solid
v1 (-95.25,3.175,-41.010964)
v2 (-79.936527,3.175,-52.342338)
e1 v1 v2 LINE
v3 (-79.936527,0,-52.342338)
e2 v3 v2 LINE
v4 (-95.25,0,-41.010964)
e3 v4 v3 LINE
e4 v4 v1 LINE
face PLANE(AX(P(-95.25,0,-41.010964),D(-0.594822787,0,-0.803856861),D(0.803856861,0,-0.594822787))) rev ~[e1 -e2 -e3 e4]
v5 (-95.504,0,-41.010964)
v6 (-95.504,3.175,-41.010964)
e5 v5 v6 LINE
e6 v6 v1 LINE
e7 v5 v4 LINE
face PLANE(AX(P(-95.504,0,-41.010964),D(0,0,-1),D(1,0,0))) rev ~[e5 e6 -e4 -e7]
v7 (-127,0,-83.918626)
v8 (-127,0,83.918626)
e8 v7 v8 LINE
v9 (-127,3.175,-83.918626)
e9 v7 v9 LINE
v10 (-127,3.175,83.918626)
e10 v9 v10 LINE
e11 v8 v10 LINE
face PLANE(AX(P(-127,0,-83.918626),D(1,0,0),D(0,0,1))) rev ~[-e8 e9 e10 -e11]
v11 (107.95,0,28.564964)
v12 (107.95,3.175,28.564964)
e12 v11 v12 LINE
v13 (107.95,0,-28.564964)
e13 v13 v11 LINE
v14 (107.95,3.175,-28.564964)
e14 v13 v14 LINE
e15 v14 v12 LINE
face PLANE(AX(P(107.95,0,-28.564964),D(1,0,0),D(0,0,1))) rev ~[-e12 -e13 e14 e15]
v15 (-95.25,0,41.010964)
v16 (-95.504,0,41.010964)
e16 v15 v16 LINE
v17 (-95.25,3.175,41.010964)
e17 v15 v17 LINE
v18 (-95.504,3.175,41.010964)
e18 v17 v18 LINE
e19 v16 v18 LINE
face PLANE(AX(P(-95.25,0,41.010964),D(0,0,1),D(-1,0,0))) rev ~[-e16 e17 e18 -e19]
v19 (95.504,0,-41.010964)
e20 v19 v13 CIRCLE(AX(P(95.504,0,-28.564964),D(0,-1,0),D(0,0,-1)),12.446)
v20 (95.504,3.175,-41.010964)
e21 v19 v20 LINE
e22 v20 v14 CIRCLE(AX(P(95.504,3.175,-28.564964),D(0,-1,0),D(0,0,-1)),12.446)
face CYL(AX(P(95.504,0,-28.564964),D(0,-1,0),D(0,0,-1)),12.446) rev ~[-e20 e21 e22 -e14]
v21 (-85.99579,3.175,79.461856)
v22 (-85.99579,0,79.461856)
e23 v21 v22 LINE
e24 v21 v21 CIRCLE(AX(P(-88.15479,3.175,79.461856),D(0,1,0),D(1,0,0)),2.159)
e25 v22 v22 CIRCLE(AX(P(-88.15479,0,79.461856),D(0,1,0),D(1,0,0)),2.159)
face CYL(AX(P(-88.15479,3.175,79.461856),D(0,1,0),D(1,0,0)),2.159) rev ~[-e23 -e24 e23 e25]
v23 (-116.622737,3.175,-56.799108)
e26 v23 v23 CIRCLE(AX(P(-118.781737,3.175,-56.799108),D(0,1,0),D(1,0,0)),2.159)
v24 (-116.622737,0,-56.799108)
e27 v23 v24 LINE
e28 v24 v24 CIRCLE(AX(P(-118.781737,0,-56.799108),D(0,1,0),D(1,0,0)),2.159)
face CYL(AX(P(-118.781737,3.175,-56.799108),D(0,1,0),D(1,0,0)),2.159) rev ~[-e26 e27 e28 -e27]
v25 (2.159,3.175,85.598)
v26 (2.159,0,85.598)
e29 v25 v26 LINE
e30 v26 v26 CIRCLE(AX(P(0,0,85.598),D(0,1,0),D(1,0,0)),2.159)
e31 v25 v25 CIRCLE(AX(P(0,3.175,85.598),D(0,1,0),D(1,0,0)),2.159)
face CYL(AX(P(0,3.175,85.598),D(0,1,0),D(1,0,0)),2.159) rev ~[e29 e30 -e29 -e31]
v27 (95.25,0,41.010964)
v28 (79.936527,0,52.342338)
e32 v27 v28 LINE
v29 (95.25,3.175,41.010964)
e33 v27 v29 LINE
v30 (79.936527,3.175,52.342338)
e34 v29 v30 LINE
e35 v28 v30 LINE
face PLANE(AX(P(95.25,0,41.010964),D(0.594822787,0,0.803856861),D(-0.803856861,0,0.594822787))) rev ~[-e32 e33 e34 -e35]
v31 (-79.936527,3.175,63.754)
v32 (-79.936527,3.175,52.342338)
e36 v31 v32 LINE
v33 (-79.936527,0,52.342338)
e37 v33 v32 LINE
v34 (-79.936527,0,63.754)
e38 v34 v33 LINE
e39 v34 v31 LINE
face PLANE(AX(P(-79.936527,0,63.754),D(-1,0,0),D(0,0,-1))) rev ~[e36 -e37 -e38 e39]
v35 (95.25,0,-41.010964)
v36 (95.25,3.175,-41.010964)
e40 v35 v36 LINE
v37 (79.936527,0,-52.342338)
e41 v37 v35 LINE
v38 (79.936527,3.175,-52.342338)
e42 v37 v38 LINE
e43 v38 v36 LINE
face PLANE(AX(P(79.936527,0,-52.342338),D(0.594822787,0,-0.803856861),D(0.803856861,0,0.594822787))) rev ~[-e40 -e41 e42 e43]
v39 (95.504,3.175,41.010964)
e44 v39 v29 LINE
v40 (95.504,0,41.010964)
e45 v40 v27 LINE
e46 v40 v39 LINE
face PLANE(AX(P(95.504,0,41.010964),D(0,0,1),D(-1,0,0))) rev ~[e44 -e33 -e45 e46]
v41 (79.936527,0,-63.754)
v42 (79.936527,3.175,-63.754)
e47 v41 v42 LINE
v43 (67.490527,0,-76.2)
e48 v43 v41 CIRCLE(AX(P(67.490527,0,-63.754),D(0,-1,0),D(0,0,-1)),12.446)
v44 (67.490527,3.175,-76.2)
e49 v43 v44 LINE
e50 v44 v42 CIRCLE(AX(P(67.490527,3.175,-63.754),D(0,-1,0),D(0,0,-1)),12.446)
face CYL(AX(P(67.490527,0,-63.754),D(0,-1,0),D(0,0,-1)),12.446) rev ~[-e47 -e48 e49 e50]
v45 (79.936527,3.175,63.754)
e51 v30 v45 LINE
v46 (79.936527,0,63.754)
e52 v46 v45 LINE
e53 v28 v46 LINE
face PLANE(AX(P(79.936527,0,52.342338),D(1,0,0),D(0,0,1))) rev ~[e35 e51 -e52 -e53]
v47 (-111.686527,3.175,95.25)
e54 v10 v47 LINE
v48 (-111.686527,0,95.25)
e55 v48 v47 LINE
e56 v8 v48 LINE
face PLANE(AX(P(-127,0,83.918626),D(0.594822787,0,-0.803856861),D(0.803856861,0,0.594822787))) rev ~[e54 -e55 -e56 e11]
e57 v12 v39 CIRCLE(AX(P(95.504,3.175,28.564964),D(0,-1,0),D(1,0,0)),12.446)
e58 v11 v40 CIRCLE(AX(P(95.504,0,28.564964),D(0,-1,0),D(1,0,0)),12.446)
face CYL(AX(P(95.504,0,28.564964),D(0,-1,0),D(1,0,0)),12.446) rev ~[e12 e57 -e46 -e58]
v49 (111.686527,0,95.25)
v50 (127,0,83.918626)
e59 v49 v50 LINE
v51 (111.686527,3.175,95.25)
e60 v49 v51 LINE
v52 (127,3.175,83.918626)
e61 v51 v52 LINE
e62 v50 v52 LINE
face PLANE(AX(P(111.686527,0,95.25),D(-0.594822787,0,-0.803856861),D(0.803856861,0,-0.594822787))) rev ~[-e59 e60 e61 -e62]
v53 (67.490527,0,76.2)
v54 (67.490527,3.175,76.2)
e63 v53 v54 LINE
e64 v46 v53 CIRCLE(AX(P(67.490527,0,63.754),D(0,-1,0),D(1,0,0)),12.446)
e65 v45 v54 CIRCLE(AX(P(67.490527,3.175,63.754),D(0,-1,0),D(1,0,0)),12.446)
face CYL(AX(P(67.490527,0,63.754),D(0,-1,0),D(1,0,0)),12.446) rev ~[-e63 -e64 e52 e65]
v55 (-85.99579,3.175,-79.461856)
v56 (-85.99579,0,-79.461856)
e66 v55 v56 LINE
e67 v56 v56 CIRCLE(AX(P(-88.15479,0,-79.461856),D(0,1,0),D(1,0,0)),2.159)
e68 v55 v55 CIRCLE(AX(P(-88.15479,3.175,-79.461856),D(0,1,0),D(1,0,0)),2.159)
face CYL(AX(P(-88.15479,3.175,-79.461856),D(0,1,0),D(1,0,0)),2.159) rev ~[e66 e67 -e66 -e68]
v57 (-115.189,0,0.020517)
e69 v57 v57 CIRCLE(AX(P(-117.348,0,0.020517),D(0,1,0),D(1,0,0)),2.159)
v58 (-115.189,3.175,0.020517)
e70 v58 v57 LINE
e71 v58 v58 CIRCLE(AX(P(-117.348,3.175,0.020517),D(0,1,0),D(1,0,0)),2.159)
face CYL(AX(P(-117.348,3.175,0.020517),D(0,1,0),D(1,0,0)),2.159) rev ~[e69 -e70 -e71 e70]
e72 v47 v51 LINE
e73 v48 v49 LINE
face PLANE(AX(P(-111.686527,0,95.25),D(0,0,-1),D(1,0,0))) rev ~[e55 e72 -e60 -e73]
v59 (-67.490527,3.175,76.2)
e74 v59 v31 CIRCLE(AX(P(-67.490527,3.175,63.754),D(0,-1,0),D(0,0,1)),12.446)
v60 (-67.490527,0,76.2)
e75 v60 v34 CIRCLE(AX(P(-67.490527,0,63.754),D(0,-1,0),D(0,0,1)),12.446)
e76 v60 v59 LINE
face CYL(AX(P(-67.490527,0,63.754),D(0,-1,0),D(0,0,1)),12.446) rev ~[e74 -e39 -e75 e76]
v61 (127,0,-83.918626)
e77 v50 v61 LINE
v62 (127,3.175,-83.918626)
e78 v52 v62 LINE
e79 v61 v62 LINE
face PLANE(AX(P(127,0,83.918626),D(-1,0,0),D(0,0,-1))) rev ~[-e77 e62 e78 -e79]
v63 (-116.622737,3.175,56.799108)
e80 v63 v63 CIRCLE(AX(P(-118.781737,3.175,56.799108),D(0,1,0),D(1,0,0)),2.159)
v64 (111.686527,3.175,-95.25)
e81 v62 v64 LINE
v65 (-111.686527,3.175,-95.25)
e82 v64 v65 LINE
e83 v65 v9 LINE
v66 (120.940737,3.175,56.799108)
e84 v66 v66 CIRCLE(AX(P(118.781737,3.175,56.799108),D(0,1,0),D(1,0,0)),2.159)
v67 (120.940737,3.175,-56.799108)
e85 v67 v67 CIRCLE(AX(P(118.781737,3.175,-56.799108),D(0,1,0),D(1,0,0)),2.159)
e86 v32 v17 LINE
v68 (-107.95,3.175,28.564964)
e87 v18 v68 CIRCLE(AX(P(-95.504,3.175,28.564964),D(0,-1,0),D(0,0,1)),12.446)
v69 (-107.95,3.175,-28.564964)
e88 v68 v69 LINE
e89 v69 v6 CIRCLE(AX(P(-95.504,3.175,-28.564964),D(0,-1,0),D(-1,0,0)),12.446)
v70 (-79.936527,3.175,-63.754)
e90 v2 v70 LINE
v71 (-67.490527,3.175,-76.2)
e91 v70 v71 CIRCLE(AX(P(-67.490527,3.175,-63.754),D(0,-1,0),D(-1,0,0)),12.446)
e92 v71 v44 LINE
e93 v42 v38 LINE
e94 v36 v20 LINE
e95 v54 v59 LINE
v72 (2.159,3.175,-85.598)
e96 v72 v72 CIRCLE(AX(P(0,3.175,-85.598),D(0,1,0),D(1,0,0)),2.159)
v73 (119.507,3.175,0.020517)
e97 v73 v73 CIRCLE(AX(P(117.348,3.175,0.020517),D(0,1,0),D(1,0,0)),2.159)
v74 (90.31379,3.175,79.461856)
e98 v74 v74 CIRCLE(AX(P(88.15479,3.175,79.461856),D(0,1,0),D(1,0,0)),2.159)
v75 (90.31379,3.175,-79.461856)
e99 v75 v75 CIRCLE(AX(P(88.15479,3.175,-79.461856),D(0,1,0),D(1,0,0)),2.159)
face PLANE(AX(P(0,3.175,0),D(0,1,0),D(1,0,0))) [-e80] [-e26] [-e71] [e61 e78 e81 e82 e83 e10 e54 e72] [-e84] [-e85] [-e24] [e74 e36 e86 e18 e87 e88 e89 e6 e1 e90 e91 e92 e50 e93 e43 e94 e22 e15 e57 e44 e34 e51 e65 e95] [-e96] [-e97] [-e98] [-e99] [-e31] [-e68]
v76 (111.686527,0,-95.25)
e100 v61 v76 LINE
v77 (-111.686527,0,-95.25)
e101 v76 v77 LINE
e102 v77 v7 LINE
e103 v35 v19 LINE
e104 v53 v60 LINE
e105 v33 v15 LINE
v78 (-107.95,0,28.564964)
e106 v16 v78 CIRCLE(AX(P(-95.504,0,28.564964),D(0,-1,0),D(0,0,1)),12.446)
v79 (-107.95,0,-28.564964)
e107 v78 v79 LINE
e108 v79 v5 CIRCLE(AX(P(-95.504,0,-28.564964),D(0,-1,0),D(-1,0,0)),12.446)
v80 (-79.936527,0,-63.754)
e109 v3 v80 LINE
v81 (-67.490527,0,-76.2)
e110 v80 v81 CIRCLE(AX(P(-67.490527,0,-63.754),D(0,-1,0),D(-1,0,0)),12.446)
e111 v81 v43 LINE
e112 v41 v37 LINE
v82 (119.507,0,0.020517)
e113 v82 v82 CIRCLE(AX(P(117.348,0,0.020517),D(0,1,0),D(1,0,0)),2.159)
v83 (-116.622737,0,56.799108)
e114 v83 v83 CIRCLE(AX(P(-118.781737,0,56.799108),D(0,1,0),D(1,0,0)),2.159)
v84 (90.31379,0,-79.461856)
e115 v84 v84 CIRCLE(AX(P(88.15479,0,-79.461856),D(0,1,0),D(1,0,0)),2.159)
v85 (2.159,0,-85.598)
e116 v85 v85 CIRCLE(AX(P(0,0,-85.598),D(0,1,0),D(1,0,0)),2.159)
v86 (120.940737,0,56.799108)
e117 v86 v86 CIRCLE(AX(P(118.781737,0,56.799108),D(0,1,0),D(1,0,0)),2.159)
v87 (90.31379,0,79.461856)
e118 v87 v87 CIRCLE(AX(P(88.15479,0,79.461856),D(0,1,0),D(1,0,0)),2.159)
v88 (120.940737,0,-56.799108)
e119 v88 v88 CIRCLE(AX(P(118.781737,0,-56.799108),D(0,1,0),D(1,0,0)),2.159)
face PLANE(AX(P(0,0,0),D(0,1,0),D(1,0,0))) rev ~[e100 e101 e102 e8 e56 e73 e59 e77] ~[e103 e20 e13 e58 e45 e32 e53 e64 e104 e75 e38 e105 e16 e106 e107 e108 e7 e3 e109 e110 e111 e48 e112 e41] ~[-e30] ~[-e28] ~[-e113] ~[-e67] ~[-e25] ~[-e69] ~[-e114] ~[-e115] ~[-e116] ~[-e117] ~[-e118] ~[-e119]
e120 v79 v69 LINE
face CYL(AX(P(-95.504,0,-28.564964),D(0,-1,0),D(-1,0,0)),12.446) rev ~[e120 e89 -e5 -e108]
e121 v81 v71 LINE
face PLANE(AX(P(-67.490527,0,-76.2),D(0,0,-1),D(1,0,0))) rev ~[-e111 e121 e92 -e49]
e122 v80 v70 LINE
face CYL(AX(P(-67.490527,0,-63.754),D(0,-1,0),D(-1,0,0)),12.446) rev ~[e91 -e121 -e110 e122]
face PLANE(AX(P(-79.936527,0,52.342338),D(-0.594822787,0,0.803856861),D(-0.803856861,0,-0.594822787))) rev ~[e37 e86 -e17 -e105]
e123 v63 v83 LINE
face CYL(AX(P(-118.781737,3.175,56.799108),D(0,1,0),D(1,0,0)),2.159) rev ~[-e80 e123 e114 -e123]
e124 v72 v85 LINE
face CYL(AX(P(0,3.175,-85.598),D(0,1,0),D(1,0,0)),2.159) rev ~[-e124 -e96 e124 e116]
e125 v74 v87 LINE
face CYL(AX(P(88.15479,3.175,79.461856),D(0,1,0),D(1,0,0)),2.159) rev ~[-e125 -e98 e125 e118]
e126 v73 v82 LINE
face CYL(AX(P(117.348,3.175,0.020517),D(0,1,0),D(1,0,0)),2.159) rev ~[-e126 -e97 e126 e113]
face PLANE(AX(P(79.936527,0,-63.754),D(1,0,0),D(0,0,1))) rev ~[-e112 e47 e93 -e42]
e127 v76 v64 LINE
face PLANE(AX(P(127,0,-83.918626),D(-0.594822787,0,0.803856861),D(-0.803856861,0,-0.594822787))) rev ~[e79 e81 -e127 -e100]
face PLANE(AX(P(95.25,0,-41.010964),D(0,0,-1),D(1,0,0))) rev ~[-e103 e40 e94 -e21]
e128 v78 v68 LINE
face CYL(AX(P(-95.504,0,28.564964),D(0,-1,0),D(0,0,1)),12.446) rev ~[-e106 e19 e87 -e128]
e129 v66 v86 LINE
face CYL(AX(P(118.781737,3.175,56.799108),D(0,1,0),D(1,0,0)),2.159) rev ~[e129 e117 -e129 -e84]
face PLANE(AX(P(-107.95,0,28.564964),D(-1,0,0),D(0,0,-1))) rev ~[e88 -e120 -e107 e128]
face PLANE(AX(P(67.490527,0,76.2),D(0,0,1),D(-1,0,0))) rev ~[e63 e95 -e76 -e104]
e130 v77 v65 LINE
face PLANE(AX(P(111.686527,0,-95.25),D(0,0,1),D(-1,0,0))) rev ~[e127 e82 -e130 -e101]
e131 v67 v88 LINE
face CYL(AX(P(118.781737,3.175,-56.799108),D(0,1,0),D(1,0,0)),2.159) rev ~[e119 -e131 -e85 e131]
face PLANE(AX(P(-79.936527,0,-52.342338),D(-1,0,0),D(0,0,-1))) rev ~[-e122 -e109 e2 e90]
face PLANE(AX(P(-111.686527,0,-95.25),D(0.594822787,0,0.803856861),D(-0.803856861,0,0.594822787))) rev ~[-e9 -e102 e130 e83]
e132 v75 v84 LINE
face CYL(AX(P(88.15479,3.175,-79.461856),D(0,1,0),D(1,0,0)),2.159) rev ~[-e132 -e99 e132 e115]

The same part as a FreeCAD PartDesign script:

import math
import FreeCAD as App
import Part
import Sketcher
Q = App.Units.Quantity

doc = App.newDocument("Part")
params = doc.addObject("Spreadsheet::Sheet", "Params")
for row, (alias, value) in enumerate([
    ("sketch1_radius", "0.49 in"),
    ("sketch1_width", "0.01 in"),
    ("sketch1_length", "0.75 in"),
    ("pad1_length", "0.125 in"),
    ("sketch2_diameter", "0.17 in"),
], start=1):
    params.set(f"A{row}", alias)
    params.set(f"B{row}", "=" + value)
    params.setAlias(f"B{row}", alias)

body = doc.addObject("PartDesign::Body", "Body")

sketch1 = doc.addObject("Sketcher::SketchObject", "Sketch")
body.addObject(sketch1)
sketch1.AttachmentSupport = (doc.XZ_Plane, [""])
sketch1.MapMode = "FlatFace"
sketch1.addGeometry([
    Part.LineSegment(App.Vector(-111.69, -95.25, 0), App.Vector(-127, -83.92, 0)),
    Part.LineSegment(App.Vector(-127, -83.92, 0), App.Vector(-127, 83.92, 0)),
    Part.LineSegment(App.Vector(-127, 83.92, 0), App.Vector(-111.69, 95.25, 0)),
    Part.LineSegment(App.Vector(-111.69, 95.25, 0), App.Vector(111.69, 95.25, 0)),
    Part.LineSegment(App.Vector(111.69, 95.25, 0), App.Vector(127, 83.92, 0)),
    Part.LineSegment(App.Vector(127, 83.92, 0), App.Vector(127, -83.92, 0)),
    Part.LineSegment(App.Vector(127, -83.92, 0), App.Vector(111.69, -95.25, 0)),
    Part.LineSegment(App.Vector(111.69, -95.25, 0), App.Vector(-111.69, -95.25, 0)),
    Part.ArcOfCircle(Part.Circle(App.Vector(-95.5, 28.56, 0), App.Vector(0, 0, 1), 12.45), math.radians(90), math.radians(180)),
    Part.LineSegment(App.Vector(-107.95, 28.56, 0), App.Vector(-107.95, -28.56, 0)),
    Part.ArcOfCircle(Part.Circle(App.Vector(-95.5, -28.56, 0), App.Vector(0, 0, 1), 12.45), math.radians(-180), math.radians(-90)),
    Part.LineSegment(App.Vector(-95.5, -41.01, 0), App.Vector(-95.25, -41.01, 0)),
    Part.LineSegment(App.Vector(-95.25, -41.01, 0), App.Vector(-79.94, -52.34, 0)),
    Part.LineSegment(App.Vector(-79.94, -52.34, 0), App.Vector(-79.94, -63.75, 0)),
    Part.ArcOfCircle(Part.Circle(App.Vector(-67.49, -63.75, 0), App.Vector(0, 0, 1), 12.45), math.radians(180), math.radians(270)),
    Part.LineSegment(App.Vector(-67.49, -76.2, 0), App.Vector(67.49, -76.2, 0)),
    Part.ArcOfCircle(Part.Circle(App.Vector(67.49, -63.75, 0), App.Vector(0, 0, 1), 12.45), math.radians(-90), math.radians(0)),
    Part.LineSegment(App.Vector(79.94, -63.75, 0), App.Vector(79.94, -52.34, 0)),
    Part.LineSegment(App.Vector(79.94, -52.34, 0), App.Vector(95.25, -41.01, 0)),
    Part.LineSegment(App.Vector(95.25, -41.01, 0), App.Vector(95.5, -41.01, 0)),
    Part.ArcOfCircle(Part.Circle(App.Vector(95.5, -28.56, 0), App.Vector(0, 0, 1), 12.45), math.radians(-90), math.radians(0)),
    Part.LineSegment(App.Vector(107.95, -28.56, 0), App.Vector(107.95, 28.56, 0)),
    Part.ArcOfCircle(Part.Circle(App.Vector(95.5, 28.56, 0), App.Vector(0, 0, 1), 12.45), math.radians(0), math.radians(90)),
    Part.LineSegment(App.Vector(95.5, 41.01, 0), App.Vector(95.25, 41.01, 0)),
    Part.LineSegment(App.Vector(95.25, 41.01, 0), App.Vector(79.94, 52.34, 0)),
    Part.LineSegment(App.Vector(79.94, 52.34, 0), App.Vector(79.94, 63.75, 0)),
    Part.ArcOfCircle(Part.Circle(App.Vector(67.49, 63.75, 0), App.Vector(0, 0, 1), 12.45), math.radians(0), math.radians(90)),
    Part.LineSegment(App.Vector(67.49, 76.2, 0), App.Vector(-67.49, 76.2, 0)),
    Part.ArcOfCircle(Part.Circle(App.Vector(-67.49, 63.75, 0), App.Vector(0, 0, 1), 12.45), math.radians(90), math.radians(180)),
    Part.LineSegment(App.Vector(-79.94, 63.75, 0), App.Vector(-79.94, 52.34, 0)),
    Part.LineSegment(App.Vector(-79.94, 52.34, 0), App.Vector(-95.25, 41.01, 0)),
    Part.LineSegment(App.Vector(-95.25, 41.01, 0), App.Vector(-95.5, 41.01, 0)),
], False)
sketch1.addConstraint([
    Sketcher.Constraint("Coincident", 0, 2, 1, 1),
    Sketcher.Constraint("Coincident", 1, 2, 2, 1),
    Sketcher.Constraint("Coincident", 2, 2, 3, 1),
    Sketcher.Constraint("Coincident", 3, 2, 4, 1),
    Sketcher.Constraint("Coincident", 4, 2, 5, 1),
    Sketcher.Constraint("Coincident", 5, 2, 6, 1),
    Sketcher.Constraint("Coincident", 6, 2, 7, 1),
    Sketcher.Constraint("Coincident", 7, 2, 0, 1),
    Sketcher.Constraint("Tangent", 8, 2, 9, 1),
    Sketcher.Constraint("Tangent", 9, 2, 10, 1),
    Sketcher.Constraint("Tangent", 10, 2, 11, 1),
    Sketcher.Constraint("Coincident", 11, 2, 12, 1),
    Sketcher.Constraint("Coincident", 12, 2, 13, 1),
    Sketcher.Constraint("Tangent", 13, 2, 14, 1),
    Sketcher.Constraint("Tangent", 14, 2, 15, 1),
    Sketcher.Constraint("Tangent", 15, 2, 16, 1),
    Sketcher.Constraint("Tangent", 16, 2, 17, 1),
    Sketcher.Constraint("Coincident", 17, 2, 18, 1),
    Sketcher.Constraint("Coincident", 18, 2, 19, 1),
    Sketcher.Constraint("Tangent", 19, 2, 20, 1),
    Sketcher.Constraint("Tangent", 20, 2, 21, 1),
    Sketcher.Constraint("Tangent", 21, 2, 22, 1),
    Sketcher.Constraint("Tangent", 22, 2, 23, 1),
    Sketcher.Constraint("Coincident", 23, 2, 24, 1),
    Sketcher.Constraint("Coincident", 24, 2, 25, 1),
    Sketcher.Constraint("Tangent", 25, 2, 26, 1),
    Sketcher.Constraint("Tangent", 26, 2, 27, 1),
    Sketcher.Constraint("Tangent", 27, 2, 28, 1),
    Sketcher.Constraint("Tangent", 28, 2, 29, 1),
    Sketcher.Constraint("Coincident", 29, 2, 30, 1),
    Sketcher.Constraint("Coincident", 30, 2, 31, 1),
    Sketcher.Constraint("Tangent", 31, 2, 8, 1),
    Sketcher.Constraint("Vertical", 1),
    Sketcher.Constraint("Horizontal", 3),
    Sketcher.Constraint("Vertical", 5),
    Sketcher.Constraint("Horizontal", 7),
    Sketcher.Constraint("Vertical", 9),
    Sketcher.Constraint("Horizontal", 11),
    Sketcher.Constraint("Vertical", 13),
    Sketcher.Constraint("Horizontal", 15),
    Sketcher.Constraint("Vertical", 17),
    Sketcher.Constraint("Horizontal", 19),
    Sketcher.Constraint("Vertical", 21),
    Sketcher.Constraint("Horizontal", 23),
    Sketcher.Constraint("Vertical", 25),
    Sketcher.Constraint("Horizontal", 27),
    Sketcher.Constraint("Vertical", 29),
    Sketcher.Constraint("Horizontal", 31),
    Sketcher.Constraint("Equal", 8, 10),
    Sketcher.Constraint("Equal", 10, 14),
    Sketcher.Constraint("Equal", 14, 16),
    Sketcher.Constraint("Equal", 16, 20),
    Sketcher.Constraint("Equal", 20, 22),
    Sketcher.Constraint("Equal", 22, 26),
    Sketcher.Constraint("Equal", 26, 28),
    Sketcher.Constraint("Symmetric", 8, 3, 20, 3, -1, 1),
    Sketcher.Constraint("Symmetric", 14, 3, 26, 3, -1, 1),
    Sketcher.Constraint("Symmetric", 0, 2, 4, 2, -1, 1),
    Sketcher.Constraint("Symmetric", 2, 2, 6, 2, -1, 1),
    Sketcher.Constraint("Symmetric", 11, 2, 23, 2, -1, 1),
    Sketcher.Constraint("Symmetric", 17, 2, 29, 2, -1, 1),
    Sketcher.Constraint("Symmetric", 12, 2, 17, 2, -2),
    Sketcher.Constraint("Symmetric", 11, 2, 18, 2, -2),
    Sketcher.Constraint("Parallel", 0, 4),
    Sketcher.Constraint("Parallel", 2, 6),
    Sketcher.Constraint("Parallel", 4, 12),
    Sketcher.Constraint("Parallel", 6, 18),
    Sketcher.Constraint("Parallel", 12, 24),
    Sketcher.Constraint("Parallel", 18, 30),
    Sketcher.Constraint("Horizontal", 1, 2, 4, 2),
    Sketcher.Constraint("Equal", 6, 12),
    Sketcher.Constraint("Radius", 8, Q("0.49 in")),
    Sketcher.Constraint("DistanceX", 0, 2, -1, 1, Q("5 in")),
    Sketcher.Constraint("DistanceY", 14, 2, -1, 1, Q("3 in")),
    Sketcher.Constraint("DistanceX", 11, 1, 11, 2, Q("0.01 in")),
    Sketcher.Constraint("Angle", 0, Q("143.5 deg")),
    Sketcher.Constraint("Distance", 0, Q("0.75 in")),
    Sketcher.Constraint("DistanceX", 8, 3, -1, 1, Q("3.76 in")),
    Sketcher.Constraint("DistanceY", -1, 1, 2, 2, Q("3.75 in")),
    Sketcher.Constraint("DistanceY", 9, 2, 9, 1, Q("57.129927 mm")),
])
sketch1.setExpression("Constraints[71]", "Params.sketch1_radius")
sketch1.setExpression("Constraints[74]", "Params.sketch1_width")
sketch1.setExpression("Constraints[76]", "Params.sketch1_length")
pad1 = doc.addObject("PartDesign::Pad", "Pad")
body.addObject(pad1)
pad1.Profile = sketch1
pad1.setExpression("Length", "Params.pad1_length")
pad1.Reversed = True

sketch2 = doc.addObject("Sketcher::SketchObject", "Sketch001")
body.addObject(sketch2)
sketch2.AttachmentSupport = (doc.XZ_Plane, [""])
sketch2.MapMode = "FlatFace"
sketch2.AttachmentOffset = App.Placement(App.Vector(0, 0, -0.125 * 25.4), App.Rotation())
sketch2.addGeometry([
    Part.Circle(App.Vector(-88.2, -79.5, 0), App.Vector(0, 0, 1), 2.2),
    Part.Circle(App.Vector(88.2, -79.5, 0), App.Vector(0, 0, 1), 2.2),
    Part.Circle(App.Vector(88.2, 79.5, 0), App.Vector(0, 0, 1), 2.2),
    Part.Circle(App.Vector(-88.2, 79.5, 0), App.Vector(0, 0, 1), 2.2),
    Part.Circle(App.Vector(-118.8, -56.8, 0), App.Vector(0, 0, 1), 2.2),
    Part.Circle(App.Vector(118.8, -56.8, 0), App.Vector(0, 0, 1), 2.2),
    Part.Circle(App.Vector(-118.8, 56.8, 0), App.Vector(0, 0, 1), 2.2),
    Part.Circle(App.Vector(118.8, 56.8, 0), App.Vector(0, 0, 1), 2.2),
    Part.Circle(App.Vector(0, 85.6, 0), App.Vector(0, 0, 1), 2.2),
    Part.Circle(App.Vector(0, -85.6, 0), App.Vector(0, 0, 1), 2.2),
    Part.Circle(App.Vector(-117.3, 0, 0), App.Vector(0, 0, 1), 2.2),
    Part.Circle(App.Vector(117.3, 0, 0), App.Vector(0, 0, 1), 2.2),
], False)
sketch2.addConstraint([
    Sketcher.Constraint("Equal", 0, 1),
    Sketcher.Constraint("Equal", 1, 2),
    Sketcher.Constraint("Equal", 2, 3),
    Sketcher.Constraint("Equal", 3, 4),
    Sketcher.Constraint("Equal", 4, 5),
    Sketcher.Constraint("Equal", 5, 6),
    Sketcher.Constraint("Equal", 6, 7),
    Sketcher.Constraint("Equal", 7, 8),
    Sketcher.Constraint("Equal", 8, 9),
    Sketcher.Constraint("Equal", 9, 10),
    Sketcher.Constraint("Equal", 10, 11),
    Sketcher.Constraint("Symmetric", 0, 3, 2, 3, -1, 1),
    Sketcher.Constraint("Symmetric", 1, 3, 3, 3, -1, 1),
    Sketcher.Constraint("Symmetric", 5, 3, 6, 3, -1, 1),
    Sketcher.Constraint("Symmetric", 4, 3, 7, 3, -1, 1),
    Sketcher.Constraint("Symmetric", 8, 3, 9, 3, -1, 1),
    Sketcher.Constraint("Symmetric", 0, 3, 1, 3, -2),
    Sketcher.Constraint("Symmetric", 4, 3, 5, 3, -2),
    Sketcher.Constraint("Symmetric", 10, 3, 11, 3, -2),
    Sketcher.Constraint("PointOnObject", 8, 3, -2),
    Sketcher.Constraint("Diameter", 0, Q("0.17 in")),
    Sketcher.Constraint("DistanceY", -1, 1, 8, 3, Q("3.37 in")),
    Sketcher.Constraint("DistanceX", 10, 3, -1, 1, Q("4.62 in")),
    Sketcher.Constraint("DistanceX", 0, 3, -1, 1, Q("88.15479 mm")),
    Sketcher.Constraint("DistanceY", 1, 3, 2, 3, Q("158.923712 mm")),
    Sketcher.Constraint("DistanceY", 0, 3, 4, 3, Q("22.662748 mm")),
    Sketcher.Constraint("DistanceY", 10, 3, 6, 3, Q("56.778591 mm")),
    Sketcher.Constraint("DistanceX", 4, 3, -1, 1, Q("118.781737 mm")),
])
sketch2.setExpression("Constraints[20]", "Params.sketch2_diameter")
pocket1 = doc.addObject("PartDesign::Pocket", "Pocket")
body.addObject(pocket1)
pocket1.Profile = sketch2
pocket1.Type = "ThroughAll"
pocket1.Reversed = True

doc.recompute()
